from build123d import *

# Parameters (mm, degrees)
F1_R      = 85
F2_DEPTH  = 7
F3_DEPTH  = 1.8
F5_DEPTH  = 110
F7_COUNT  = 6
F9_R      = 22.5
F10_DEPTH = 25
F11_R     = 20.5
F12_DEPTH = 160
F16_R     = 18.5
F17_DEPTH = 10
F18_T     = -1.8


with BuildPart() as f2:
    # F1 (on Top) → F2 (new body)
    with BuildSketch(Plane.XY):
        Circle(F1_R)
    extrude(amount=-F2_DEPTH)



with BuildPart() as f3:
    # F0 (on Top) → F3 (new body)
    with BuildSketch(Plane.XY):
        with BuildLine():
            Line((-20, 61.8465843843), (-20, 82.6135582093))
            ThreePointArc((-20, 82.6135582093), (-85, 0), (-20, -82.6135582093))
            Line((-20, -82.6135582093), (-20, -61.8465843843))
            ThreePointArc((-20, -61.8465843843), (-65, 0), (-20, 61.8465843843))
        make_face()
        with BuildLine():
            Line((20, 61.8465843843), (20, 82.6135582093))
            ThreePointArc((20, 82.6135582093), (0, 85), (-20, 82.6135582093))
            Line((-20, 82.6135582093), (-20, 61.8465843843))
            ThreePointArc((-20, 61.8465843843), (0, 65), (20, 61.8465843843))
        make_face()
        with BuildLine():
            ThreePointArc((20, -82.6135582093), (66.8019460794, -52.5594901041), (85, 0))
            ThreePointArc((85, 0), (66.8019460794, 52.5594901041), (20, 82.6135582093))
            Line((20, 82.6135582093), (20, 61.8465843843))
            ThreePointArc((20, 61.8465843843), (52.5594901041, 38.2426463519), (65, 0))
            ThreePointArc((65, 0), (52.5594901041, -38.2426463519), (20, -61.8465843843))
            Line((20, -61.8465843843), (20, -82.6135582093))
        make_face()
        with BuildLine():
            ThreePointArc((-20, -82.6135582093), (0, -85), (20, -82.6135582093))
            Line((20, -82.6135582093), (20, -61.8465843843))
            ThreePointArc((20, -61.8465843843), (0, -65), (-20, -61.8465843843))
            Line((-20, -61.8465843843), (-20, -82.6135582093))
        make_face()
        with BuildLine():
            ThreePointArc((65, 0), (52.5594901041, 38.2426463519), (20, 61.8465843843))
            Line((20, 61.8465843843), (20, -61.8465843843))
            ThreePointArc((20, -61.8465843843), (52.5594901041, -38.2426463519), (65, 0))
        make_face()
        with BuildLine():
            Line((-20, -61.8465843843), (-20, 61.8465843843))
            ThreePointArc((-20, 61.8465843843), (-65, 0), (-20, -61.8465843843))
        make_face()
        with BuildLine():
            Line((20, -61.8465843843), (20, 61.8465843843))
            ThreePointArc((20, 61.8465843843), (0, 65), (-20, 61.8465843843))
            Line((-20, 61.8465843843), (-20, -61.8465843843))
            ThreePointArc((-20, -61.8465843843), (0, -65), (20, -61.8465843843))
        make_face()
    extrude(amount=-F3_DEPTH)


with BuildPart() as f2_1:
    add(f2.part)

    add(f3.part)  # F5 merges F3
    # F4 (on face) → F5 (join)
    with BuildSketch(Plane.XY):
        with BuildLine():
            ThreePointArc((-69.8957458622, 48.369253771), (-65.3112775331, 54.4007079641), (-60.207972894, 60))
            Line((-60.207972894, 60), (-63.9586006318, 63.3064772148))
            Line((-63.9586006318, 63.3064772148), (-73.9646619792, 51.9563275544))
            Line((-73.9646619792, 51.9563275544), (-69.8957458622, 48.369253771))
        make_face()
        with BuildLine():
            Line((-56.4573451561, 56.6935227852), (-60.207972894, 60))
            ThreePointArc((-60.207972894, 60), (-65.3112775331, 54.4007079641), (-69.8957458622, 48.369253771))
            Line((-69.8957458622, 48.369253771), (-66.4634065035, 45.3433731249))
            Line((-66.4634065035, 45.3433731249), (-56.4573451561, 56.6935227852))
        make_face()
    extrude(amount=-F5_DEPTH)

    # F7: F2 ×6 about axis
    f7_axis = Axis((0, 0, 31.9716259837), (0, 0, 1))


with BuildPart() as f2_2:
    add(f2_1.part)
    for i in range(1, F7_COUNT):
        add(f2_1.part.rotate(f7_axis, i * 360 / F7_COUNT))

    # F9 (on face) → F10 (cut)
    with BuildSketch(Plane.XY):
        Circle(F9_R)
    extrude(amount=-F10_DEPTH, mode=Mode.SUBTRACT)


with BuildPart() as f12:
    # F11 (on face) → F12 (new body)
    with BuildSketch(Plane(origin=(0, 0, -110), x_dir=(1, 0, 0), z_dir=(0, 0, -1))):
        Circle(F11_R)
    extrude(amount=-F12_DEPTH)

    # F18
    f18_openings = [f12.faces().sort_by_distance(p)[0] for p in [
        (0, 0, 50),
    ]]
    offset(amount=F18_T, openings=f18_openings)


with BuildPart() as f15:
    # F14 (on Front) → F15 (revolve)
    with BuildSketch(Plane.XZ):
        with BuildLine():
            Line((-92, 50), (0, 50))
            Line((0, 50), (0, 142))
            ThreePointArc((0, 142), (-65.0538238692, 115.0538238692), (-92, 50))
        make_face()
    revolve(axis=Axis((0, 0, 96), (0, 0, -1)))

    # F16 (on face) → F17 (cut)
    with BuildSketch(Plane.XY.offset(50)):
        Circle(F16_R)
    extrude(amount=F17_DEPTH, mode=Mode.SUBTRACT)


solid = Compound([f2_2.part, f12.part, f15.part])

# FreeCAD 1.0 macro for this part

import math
import FreeCAD as App
import Part
import Sketcher
from FreeCAD import Vector


def faces_at(feature, points):
    """Names of the faces that lie closest to the given points."""
    faces = feature.Shape.Faces
    near = lambda p: min(range(len(faces)), key=lambda i: faces[i].distToShape(Part.Vertex(*p))[0])
    return sorted({f"Face{near(p) + 1}" for p in points})


def add_polygon(sketch, points):
    """Adds a closed chain of lines whose ends are joined by coincident constraints."""
    first, n = sketch.GeometryCount, len(points)
    for a, b in zip(points, points[1:] + points[:1]):
        sketch.addGeometry(Part.LineSegment(App.Vector(*a, 0), App.Vector(*b, 0)), False)
    for i in range(n):
        sketch.addConstraint(Sketcher.Constraint("Coincident", first + i, 2, first + (i + 1) % n, 1))

doc = App.newDocument("Part")
params = doc.addObject("Spreadsheet::Sheet", "Params")
for row, (alias, value) in enumerate([
    ("sketch1_diameter", "170 mm"),
    ("pad1_length", "7 mm"),
    ("sketch2_radius", "85 mm"),
    ("pad2_length", "1.8 mm"),
    ("sketch3_length", "5 mm"),
    ("pad3_length", "110 mm"),
    ("sketch4_diameter", "45 mm"),
    ("pocket1_length", "25 mm"),
    ("sketch5_diameter", "41 mm"),
    ("pad4_length", "160 mm"),
    ("thickness_wall", "1.8 mm"),
    ("sketch6_radius", "92 mm"),
    ("revolution_angle", "360 deg"),
    ("sketch7_diameter", "37 mm"),
    ("pocket2_length", "10 mm"),
], start=1):
    params.set(f"A{row}", alias)
    params.set(f"B{row}", "=" + value)
    params.setAlias(f"B{row}", alias)

body = doc.addObject("PartDesign::Body", "Body")

# Sketch on XY plane
sketch1 = body.newObject("Sketcher::SketchObject", "Sketch")
sketch1.AttachmentSupport = (doc.getObject("XY_Plane"), [""])
sketch1.MapMode = "FlatFace"
sketch1.addGeometry(Part.Circle(Vector(0, 0, 0), Vector(0, 0, 1), 85), False)
sketch1.addConstraint([
    Sketcher.Constraint("Coincident", 0, 3, -1, 1),
    Sketcher.Constraint("Diameter", 0, 170.0),
])
sketch1.setExpression("Constraints[1]", "Params.sketch1_diameter")
pad1 = body.newObject("PartDesign::Pad", "Pad")
pad1.Profile = sketch1
pad1.setExpression("Length", "Params.pad1_length")
pad1.Reversed = True
body2 = doc.addObject("PartDesign::Body", "Body001")

# Sketch on XY plane
sketch2 = body2.newObject("Sketcher::SketchObject", "Sketch001")
sketch2.AttachmentSupport = (doc.getObject("XY_Plane001"), [""])
sketch2.MapMode = "FlatFace"
sketch2.addGeometry([
    Part.ArcOfCircle(Part.Circle(Vector(0, 0, 0), Vector(0, 0, 1), 85), math.radians(-76), math.radians(76)),
    Part.ArcOfCircle(Part.Circle(Vector(0, 0, 0), Vector(0, 0, 1), 85), math.radians(76), math.radians(256)),
    Part.ArcOfCircle(Part.Circle(Vector(0, 0, 0), Vector(0, 0, 1), 85), math.radians(-104), math.radians(-76)),
], False)
sketch2.addConstraint([
    Sketcher.Constraint("Tangent", 0, 2, 1, 1),
    Sketcher.Constraint("Tangent", 1, 2, 2, 1),
    Sketcher.Constraint("Tangent", 2, 2, 0, 1),
    Sketcher.Constraint("Coincident", 0, 3, -1, 1),
    Sketcher.Constraint("Horizontal", 1, 2, 2, 2),
    Sketcher.Constraint("Vertical", 0, 2, 2, 2),
    Sketcher.Constraint("Radius", 0, 85.0),
    Sketcher.Constraint("DistanceX", -1, 1, 0, 2, 20.0),
])
sketch2.setExpression("Constraints[6]", "Params.sketch2_radius")
pad2 = body2.newObject("PartDesign::Pad", "Pad001")
pad2.Profile = sketch2
pad2.setExpression("Length", "Params.pad2_length")
pad2.Reversed = True
doc.recompute()

boolean = body.newObject("PartDesign::Boolean", "Boolean")
boolean.Type = "Fuse"
boolean.addObjects([body2])

# Sketch on XY plane
sketch3 = body.newObject("Sketcher::SketchObject", "Sketch002")
sketch3.AttachmentSupport = (doc.getObject("XY_Plane"), [""])
sketch3.MapMode = "FlatFace"
add_polygon(sketch3, [(-60.2, 60), (-64, 63.3), (-74, 52), (-69.9, 48.4), (-66.5, 45.3), (-56.5, 56.7)])  # lines 0-5
sketch3.addConstraint([
    Sketcher.Constraint("Perpendicular", 0, 1),
    Sketcher.Constraint("Perpendicular", 1, 2),
    Sketcher.Constraint("Parallel", 2, 3),
    Sketcher.Constraint("Perpendicular", 3, 4),
    Sketcher.Constraint("Perpendicular", 4, 5),
    Sketcher.Constraint("Equal", 0, 5),
    Sketcher.Constraint("Distance", 0, 5.0),
    Sketcher.Constraint("DistanceY", -1, 1, 5, 2, 60.0),
    Sketcher.Constraint("Distance", 1, 15.131),
    Sketcher.Constraint("DistanceX", 0, 2, -1, 1, 63.958601),
    Sketcher.Constraint("DistanceX", 2, 2, 4, 2, 13.438401),
    Sketcher.Constraint("DistanceX", 1, 2, -1, 1, 73.964662),
])
sketch3.setExpression("Constraints[12]", "Params.sketch3_length")
pad3 = body.newObject("PartDesign::Pad", "Pad002")
pad3.Profile = sketch3
pad3.setExpression("Length", "Params.pad3_length")
pad3.Reversed = True
body3 = doc.addObject("PartDesign::Body", "Body002")
doc.recompute()

body3.BaseFeature = body
doc.recompute()

body4 = doc.addObject("PartDesign::Body", "Body003")
body4.BaseFeature = body
body4.Placement = App.Placement(Vector(0, 0, 0), App.Rotation(Vector(0, 0, 1), 60))
boolean2 = body3.newObject("PartDesign::Boolean", "Boolean001")
boolean2.Type = "Fuse"
boolean2.addObjects([body4])
doc.recompute()

body5 = doc.addObject("PartDesign::Body", "Body004")
body5.BaseFeature = body
body5.Placement = App.Placement(Vector(0, 0, 0), App.Rotation(Vector(0, 0, 1), 120))
boolean3 = body3.newObject("PartDesign::Boolean", "Boolean002")
boolean3.Type = "Fuse"
boolean3.addObjects([body5])
doc.recompute()

body6 = doc.addObject("PartDesign::Body", "Body005")
body6.BaseFeature = body
body6.Placement = App.Placement(Vector(0, 0, 0), App.Rotation(Vector(0, 0, 1), 180))
boolean4 = body3.newObject("PartDesign::Boolean", "Boolean003")
boolean4.Type = "Fuse"
boolean4.addObjects([body6])
doc.recompute()

body7 = doc.addObject("PartDesign::Body", "Body006")
body7.BaseFeature = body
body7.Placement = App.Placement(Vector(0, 0, 0), App.Rotation(Vector(0, 0, 1), 240))
boolean5 = body3.newObject("PartDesign::Boolean", "Boolean004")
boolean5.Type = "Fuse"
boolean5.addObjects([body7])
doc.recompute()

body.Placement = App.Placement(Vector(0, 0, 0), App.Rotation(Vector(0, 0, 1), 300))
boolean6 = body3.newObject("PartDesign::Boolean", "Boolean005")
boolean6.Type = "Fuse"
boolean6.addObjects([body])

# Sketch on XY plane
sketch4 = body3.newObject("Sketcher::SketchObject", "Sketch003")
sketch4.AttachmentSupport = (doc.getObject("XY_Plane002"), [""])
sketch4.MapMode = "FlatFace"
sketch4.addGeometry(Part.Circle(Vector(0, 0, 0), Vector(0, 0, 1), 22), False)
sketch4.addConstraint([
    Sketcher.Constraint("Coincident", 0, 3, -1, 1),
    Sketcher.Constraint("Diameter", 0, 45.0),
])
sketch4.setExpression("Constraints[1]", "Params.sketch4_diameter")
pocket1 = body3.newObject("PartDesign::Pocket", "Pocket")
pocket1.Profile = sketch4
pocket1.setExpression("Length", "Params.pocket1_length")
body8 = doc.addObject("PartDesign::Body", "Body007")

# Sketch on XY plane
sketch5 = body8.newObject("Sketcher::SketchObject", "Sketch004")
sketch5.AttachmentSupport = (doc.getObject("XY_Plane007"), [""])
sketch5.MapMode = "FlatFace"
sketch5.AttachmentOffset = App.Placement(Vector(0, 0, -110), App.Rotation())
sketch5.addGeometry(Part.Circle(Vector(0, 0, 0), Vector(0, 0, 1), 20), False)
sketch5.addConstraint([
    Sketcher.Constraint("Coincident", 0, 3, -1, 1),
    Sketcher.Constraint("Diameter", 0, 41.0),
])
sketch5.setExpression("Constraints[1]", "Params.sketch5_diameter")
pad4 = body8.newObject("PartDesign::Pad", "Pad003")
pad4.Profile = sketch5
pad4.setExpression("Length", "Params.pad4_length")
doc.recompute()

thickness = body8.newObject("PartDesign::Thickness", "Thickness")
thickness.Base = (pad4, faces_at(pad4, [(0, 0, 50)]))
thickness.setExpression("Value", "Params.thickness_wall")
thickness.Reversed = True
thickness.Join = "Arc"
body9 = doc.addObject("PartDesign::Body", "Body008")

# Sketch on XZ plane
sketch6 = body9.newObject("Sketcher::SketchObject", "Sketch005")
sketch6.AttachmentSupport = (doc.getObject("XZ_Plane008"), [""])
sketch6.MapMode = "FlatFace"
sketch6.addGeometry([
    Part.LineSegment(Vector(-92, 50, 0), Vector(0, 50, 0)),
    Part.LineSegment(Vector(0, 50, 0), Vector(0, 142, 0)),
    Part.ArcOfCircle(Part.Circle(Vector(0, 50, 0), Vector(0, 0, 1), 92), math.radians(90), math.radians(180)),
], False)
sketch6.addConstraint([
    Sketcher.Constraint("Coincident", 0, 2, 1, 1),
    Sketcher.Constraint("Coincident", 1, 2, 2, 1),
    Sketcher.Constraint("Coincident", 2, 2, 0, 1),
    Sketcher.Constraint("Horizontal", 0),
    Sketcher.Constraint("Vertical", 1),
    Sketcher.Constraint("Coincident", 0, 2, 2, 3),
    Sketcher.Constraint("PointOnObject", 2, 3, -2),
    Sketcher.Constraint("Radius", 2, 92.0),
    Sketcher.Constraint("DistanceY", -1, 1, 2, 3, 50.0),
])
sketch6.setExpression("Constraints[7]", "Params.sketch6_radius")
revolution = body9.newObject("PartDesign::Revolution", "Revolution")
revolution.Profile = sketch6
revolution.ReferenceAxis = (sketch6, ["V_Axis"])
revolution.setExpression("Angle", "Params.revolution_angle")

# Sketch on XY plane
sketch7 = body9.newObject("Sketcher::SketchObject", "Sketch006")
sketch7.AttachmentSupport = (doc.getObject("XY_Plane008"), [""])
sketch7.MapMode = "FlatFace"
sketch7.AttachmentOffset = App.Placement(Vector(0, 0, 50), App.Rotation())
sketch7.addGeometry(Part.Circle(Vector(0, 0, 0), Vector(0, 0, 1), 18), False)
sketch7.addConstraint([
    Sketcher.Constraint("Coincident", 0, 3, -1, 1),
    Sketcher.Constraint("Diameter", 0, 37.0),
])
sketch7.setExpression("Constraints[1]", "Params.sketch7_diameter")
pocket2 = body9.newObject("PartDesign::Pocket", "Pocket001")
pocket2.Profile = sketch7
pocket2.setExpression("Length", "Params.pocket2_length")
pocket2.Reversed = True

doc.recompute()
